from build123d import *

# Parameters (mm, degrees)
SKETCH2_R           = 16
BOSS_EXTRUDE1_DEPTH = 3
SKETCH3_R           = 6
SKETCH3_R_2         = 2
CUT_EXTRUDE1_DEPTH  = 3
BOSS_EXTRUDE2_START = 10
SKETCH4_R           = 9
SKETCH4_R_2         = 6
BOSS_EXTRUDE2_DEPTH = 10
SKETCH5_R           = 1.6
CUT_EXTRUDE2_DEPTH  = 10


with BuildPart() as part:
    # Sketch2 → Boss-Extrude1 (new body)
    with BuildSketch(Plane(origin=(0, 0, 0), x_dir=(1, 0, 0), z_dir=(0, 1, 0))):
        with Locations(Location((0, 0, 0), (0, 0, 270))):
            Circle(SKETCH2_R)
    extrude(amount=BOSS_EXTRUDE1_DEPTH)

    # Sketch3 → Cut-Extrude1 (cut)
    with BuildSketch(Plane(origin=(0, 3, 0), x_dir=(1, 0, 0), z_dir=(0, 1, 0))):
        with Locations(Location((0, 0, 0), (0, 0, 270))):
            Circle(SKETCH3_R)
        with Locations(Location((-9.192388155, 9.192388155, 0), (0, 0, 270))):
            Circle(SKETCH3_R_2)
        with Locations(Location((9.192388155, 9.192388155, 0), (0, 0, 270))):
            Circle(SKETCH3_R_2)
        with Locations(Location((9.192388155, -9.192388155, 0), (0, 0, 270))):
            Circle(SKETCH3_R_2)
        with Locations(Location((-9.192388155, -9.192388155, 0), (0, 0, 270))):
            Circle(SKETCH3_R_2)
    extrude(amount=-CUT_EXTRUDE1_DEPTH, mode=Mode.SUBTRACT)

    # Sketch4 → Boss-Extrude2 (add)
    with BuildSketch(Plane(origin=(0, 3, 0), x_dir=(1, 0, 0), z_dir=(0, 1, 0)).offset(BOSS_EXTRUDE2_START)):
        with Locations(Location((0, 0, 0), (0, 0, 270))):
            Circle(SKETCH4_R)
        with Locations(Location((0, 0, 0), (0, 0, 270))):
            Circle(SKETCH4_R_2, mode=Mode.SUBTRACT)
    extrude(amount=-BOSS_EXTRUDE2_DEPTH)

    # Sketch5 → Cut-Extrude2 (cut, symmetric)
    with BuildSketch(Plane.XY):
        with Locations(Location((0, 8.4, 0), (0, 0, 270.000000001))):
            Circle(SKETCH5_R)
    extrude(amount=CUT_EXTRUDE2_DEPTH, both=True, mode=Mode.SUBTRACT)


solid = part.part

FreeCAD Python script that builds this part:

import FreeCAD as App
import Part
import Sketcher
Q = App.Units.Quantity

doc = App.newDocument("Part")
body = doc.addObject("PartDesign::Body", "Body")

sketch1 = body.newObject("Sketcher::SketchObject", "Sketch")
sketch1.AttachmentSupport = (doc.getObject("XZ_Plane"), [""])
sketch1.MapMode = "FlatFace"
sketch1.addGeometry(Part.Circle(App.Vector(0, 0, 0), App.Vector(0, 0, 1), 16), False)
sketch1.addConstraint([
    Sketcher.Constraint("Coincident", 0, 3, -1, 1),
    Sketcher.Constraint("Diameter", 0, Q("32 mm")),
])
pad1 = body.newObject("PartDesign::Pad", "Pad")
pad1.Profile = sketch1
pad1.Length = 3
pad1.Reversed = True

sketch2 = body.newObject("Sketcher::SketchObject", "Sketch001")
sketch2.AttachmentSupport = (doc.getObject("XZ_Plane"), [""])
sketch2.MapMode = "FlatFace"
sketch2.AttachmentOffset = App.Placement(App.Vector(0, 0, -3), App.Rotation())
sketch2.addGeometry([
    Part.Circle(App.Vector(0, 0, 0), App.Vector(0, 0, 1), 6),
    Part.Circle(App.Vector(-9.2, -9.2, 0), App.Vector(0, 0, 1), 2),
    Part.Circle(App.Vector(9.2, -9.2, 0), App.Vector(0, 0, 1), 2),
    Part.Circle(App.Vector(9.2, 9.2, 0), App.Vector(0, 0, 1), 2),
    Part.Circle(App.Vector(-9.2, 9.2, 0), App.Vector(0, 0, 1), 2),
], False)
sketch2.addConstraint([
    Sketcher.Constraint("Coincident", 0, 3, -1, 1),
    Sketcher.Constraint("Equal", 1, 2),
    Sketcher.Constraint("Equal", 2, 3),
    Sketcher.Constraint("Equal", 3, 4),
    Sketcher.Constraint("Symmetric", 1, 3, 3, 3, -1, 1),
    Sketcher.Constraint("Symmetric", 2, 3, 4, 3, -1, 1),
    Sketcher.Constraint("Symmetric", 1, 3, 2, 3, -2),
    Sketcher.Constraint("Diameter", 0, Q("12 mm")),
    Sketcher.Constraint("Diameter", 1, Q("4 mm")),
    Sketcher.Constraint("DistanceX", 1, 3, -1, 1, Q("9.192388 mm")),
    Sketcher.Constraint("DistanceY", 1, 3, -1, 1, Q("9.192388 mm")),
])
pocket1 = body.newObject("PartDesign::Pocket", "Pocket")
pocket1.Profile = sketch2
pocket1.Length = 3
pocket1.Reversed = True

sketch3 = body.newObject("Sketcher::SketchObject", "Sketch002")
sketch3.AttachmentSupport = (doc.getObject("XZ_Plane"), [""])
sketch3.MapMode = "FlatFace"
sketch3.AttachmentOffset = App.Placement(App.Vector(0, 0, -13), App.Rotation())
sketch3.addGeometry([
    Part.Circle(App.Vector(0, 0, 0), App.Vector(0, 0, 1), 9),
    Part.Circle(App.Vector(0, 0, 0), App.Vector(0, 0, 1), 6),
], False)
sketch3.addConstraint([
    Sketcher.Constraint("Coincident", 0, 3, -1, 1),
    Sketcher.Constraint("Coincident", 1, 3, -1, 1),
    Sketcher.Constraint("Diameter", 0, Q("18 mm")),
    Sketcher.Constraint("Diameter", 1, Q("12 mm")),
])
pad2 = body.newObject("PartDesign::Pad", "Pad001")
pad2.Profile = sketch3
pad2.Length = 10

sketch4 = body.newObject("Sketcher::SketchObject", "Sketch003")
sketch4.AttachmentSupport = (doc.getObject("XY_Plane"), [""])
sketch4.MapMode = "FlatFace"
sketch4.addGeometry(Part.Circle(App.Vector(0, 8.4, 0), App.Vector(0, 0, 1), 1.6), False)
sketch4.addConstraint([
    Sketcher.Constraint("PointOnObject", 0, 3, -2),
    Sketcher.Constraint("Diameter", 0, Q("3.2 mm")),
    Sketcher.Constraint("DistanceY", -1, 1, 0, 3, Q("8.4 mm")),
])
pocket2 = body.newObject("PartDesign::Pocket", "Pocket001")
pocket2.Profile = sketch4
pocket2.Length = 20
pocket2.Midplane = True

doc.recompute()
